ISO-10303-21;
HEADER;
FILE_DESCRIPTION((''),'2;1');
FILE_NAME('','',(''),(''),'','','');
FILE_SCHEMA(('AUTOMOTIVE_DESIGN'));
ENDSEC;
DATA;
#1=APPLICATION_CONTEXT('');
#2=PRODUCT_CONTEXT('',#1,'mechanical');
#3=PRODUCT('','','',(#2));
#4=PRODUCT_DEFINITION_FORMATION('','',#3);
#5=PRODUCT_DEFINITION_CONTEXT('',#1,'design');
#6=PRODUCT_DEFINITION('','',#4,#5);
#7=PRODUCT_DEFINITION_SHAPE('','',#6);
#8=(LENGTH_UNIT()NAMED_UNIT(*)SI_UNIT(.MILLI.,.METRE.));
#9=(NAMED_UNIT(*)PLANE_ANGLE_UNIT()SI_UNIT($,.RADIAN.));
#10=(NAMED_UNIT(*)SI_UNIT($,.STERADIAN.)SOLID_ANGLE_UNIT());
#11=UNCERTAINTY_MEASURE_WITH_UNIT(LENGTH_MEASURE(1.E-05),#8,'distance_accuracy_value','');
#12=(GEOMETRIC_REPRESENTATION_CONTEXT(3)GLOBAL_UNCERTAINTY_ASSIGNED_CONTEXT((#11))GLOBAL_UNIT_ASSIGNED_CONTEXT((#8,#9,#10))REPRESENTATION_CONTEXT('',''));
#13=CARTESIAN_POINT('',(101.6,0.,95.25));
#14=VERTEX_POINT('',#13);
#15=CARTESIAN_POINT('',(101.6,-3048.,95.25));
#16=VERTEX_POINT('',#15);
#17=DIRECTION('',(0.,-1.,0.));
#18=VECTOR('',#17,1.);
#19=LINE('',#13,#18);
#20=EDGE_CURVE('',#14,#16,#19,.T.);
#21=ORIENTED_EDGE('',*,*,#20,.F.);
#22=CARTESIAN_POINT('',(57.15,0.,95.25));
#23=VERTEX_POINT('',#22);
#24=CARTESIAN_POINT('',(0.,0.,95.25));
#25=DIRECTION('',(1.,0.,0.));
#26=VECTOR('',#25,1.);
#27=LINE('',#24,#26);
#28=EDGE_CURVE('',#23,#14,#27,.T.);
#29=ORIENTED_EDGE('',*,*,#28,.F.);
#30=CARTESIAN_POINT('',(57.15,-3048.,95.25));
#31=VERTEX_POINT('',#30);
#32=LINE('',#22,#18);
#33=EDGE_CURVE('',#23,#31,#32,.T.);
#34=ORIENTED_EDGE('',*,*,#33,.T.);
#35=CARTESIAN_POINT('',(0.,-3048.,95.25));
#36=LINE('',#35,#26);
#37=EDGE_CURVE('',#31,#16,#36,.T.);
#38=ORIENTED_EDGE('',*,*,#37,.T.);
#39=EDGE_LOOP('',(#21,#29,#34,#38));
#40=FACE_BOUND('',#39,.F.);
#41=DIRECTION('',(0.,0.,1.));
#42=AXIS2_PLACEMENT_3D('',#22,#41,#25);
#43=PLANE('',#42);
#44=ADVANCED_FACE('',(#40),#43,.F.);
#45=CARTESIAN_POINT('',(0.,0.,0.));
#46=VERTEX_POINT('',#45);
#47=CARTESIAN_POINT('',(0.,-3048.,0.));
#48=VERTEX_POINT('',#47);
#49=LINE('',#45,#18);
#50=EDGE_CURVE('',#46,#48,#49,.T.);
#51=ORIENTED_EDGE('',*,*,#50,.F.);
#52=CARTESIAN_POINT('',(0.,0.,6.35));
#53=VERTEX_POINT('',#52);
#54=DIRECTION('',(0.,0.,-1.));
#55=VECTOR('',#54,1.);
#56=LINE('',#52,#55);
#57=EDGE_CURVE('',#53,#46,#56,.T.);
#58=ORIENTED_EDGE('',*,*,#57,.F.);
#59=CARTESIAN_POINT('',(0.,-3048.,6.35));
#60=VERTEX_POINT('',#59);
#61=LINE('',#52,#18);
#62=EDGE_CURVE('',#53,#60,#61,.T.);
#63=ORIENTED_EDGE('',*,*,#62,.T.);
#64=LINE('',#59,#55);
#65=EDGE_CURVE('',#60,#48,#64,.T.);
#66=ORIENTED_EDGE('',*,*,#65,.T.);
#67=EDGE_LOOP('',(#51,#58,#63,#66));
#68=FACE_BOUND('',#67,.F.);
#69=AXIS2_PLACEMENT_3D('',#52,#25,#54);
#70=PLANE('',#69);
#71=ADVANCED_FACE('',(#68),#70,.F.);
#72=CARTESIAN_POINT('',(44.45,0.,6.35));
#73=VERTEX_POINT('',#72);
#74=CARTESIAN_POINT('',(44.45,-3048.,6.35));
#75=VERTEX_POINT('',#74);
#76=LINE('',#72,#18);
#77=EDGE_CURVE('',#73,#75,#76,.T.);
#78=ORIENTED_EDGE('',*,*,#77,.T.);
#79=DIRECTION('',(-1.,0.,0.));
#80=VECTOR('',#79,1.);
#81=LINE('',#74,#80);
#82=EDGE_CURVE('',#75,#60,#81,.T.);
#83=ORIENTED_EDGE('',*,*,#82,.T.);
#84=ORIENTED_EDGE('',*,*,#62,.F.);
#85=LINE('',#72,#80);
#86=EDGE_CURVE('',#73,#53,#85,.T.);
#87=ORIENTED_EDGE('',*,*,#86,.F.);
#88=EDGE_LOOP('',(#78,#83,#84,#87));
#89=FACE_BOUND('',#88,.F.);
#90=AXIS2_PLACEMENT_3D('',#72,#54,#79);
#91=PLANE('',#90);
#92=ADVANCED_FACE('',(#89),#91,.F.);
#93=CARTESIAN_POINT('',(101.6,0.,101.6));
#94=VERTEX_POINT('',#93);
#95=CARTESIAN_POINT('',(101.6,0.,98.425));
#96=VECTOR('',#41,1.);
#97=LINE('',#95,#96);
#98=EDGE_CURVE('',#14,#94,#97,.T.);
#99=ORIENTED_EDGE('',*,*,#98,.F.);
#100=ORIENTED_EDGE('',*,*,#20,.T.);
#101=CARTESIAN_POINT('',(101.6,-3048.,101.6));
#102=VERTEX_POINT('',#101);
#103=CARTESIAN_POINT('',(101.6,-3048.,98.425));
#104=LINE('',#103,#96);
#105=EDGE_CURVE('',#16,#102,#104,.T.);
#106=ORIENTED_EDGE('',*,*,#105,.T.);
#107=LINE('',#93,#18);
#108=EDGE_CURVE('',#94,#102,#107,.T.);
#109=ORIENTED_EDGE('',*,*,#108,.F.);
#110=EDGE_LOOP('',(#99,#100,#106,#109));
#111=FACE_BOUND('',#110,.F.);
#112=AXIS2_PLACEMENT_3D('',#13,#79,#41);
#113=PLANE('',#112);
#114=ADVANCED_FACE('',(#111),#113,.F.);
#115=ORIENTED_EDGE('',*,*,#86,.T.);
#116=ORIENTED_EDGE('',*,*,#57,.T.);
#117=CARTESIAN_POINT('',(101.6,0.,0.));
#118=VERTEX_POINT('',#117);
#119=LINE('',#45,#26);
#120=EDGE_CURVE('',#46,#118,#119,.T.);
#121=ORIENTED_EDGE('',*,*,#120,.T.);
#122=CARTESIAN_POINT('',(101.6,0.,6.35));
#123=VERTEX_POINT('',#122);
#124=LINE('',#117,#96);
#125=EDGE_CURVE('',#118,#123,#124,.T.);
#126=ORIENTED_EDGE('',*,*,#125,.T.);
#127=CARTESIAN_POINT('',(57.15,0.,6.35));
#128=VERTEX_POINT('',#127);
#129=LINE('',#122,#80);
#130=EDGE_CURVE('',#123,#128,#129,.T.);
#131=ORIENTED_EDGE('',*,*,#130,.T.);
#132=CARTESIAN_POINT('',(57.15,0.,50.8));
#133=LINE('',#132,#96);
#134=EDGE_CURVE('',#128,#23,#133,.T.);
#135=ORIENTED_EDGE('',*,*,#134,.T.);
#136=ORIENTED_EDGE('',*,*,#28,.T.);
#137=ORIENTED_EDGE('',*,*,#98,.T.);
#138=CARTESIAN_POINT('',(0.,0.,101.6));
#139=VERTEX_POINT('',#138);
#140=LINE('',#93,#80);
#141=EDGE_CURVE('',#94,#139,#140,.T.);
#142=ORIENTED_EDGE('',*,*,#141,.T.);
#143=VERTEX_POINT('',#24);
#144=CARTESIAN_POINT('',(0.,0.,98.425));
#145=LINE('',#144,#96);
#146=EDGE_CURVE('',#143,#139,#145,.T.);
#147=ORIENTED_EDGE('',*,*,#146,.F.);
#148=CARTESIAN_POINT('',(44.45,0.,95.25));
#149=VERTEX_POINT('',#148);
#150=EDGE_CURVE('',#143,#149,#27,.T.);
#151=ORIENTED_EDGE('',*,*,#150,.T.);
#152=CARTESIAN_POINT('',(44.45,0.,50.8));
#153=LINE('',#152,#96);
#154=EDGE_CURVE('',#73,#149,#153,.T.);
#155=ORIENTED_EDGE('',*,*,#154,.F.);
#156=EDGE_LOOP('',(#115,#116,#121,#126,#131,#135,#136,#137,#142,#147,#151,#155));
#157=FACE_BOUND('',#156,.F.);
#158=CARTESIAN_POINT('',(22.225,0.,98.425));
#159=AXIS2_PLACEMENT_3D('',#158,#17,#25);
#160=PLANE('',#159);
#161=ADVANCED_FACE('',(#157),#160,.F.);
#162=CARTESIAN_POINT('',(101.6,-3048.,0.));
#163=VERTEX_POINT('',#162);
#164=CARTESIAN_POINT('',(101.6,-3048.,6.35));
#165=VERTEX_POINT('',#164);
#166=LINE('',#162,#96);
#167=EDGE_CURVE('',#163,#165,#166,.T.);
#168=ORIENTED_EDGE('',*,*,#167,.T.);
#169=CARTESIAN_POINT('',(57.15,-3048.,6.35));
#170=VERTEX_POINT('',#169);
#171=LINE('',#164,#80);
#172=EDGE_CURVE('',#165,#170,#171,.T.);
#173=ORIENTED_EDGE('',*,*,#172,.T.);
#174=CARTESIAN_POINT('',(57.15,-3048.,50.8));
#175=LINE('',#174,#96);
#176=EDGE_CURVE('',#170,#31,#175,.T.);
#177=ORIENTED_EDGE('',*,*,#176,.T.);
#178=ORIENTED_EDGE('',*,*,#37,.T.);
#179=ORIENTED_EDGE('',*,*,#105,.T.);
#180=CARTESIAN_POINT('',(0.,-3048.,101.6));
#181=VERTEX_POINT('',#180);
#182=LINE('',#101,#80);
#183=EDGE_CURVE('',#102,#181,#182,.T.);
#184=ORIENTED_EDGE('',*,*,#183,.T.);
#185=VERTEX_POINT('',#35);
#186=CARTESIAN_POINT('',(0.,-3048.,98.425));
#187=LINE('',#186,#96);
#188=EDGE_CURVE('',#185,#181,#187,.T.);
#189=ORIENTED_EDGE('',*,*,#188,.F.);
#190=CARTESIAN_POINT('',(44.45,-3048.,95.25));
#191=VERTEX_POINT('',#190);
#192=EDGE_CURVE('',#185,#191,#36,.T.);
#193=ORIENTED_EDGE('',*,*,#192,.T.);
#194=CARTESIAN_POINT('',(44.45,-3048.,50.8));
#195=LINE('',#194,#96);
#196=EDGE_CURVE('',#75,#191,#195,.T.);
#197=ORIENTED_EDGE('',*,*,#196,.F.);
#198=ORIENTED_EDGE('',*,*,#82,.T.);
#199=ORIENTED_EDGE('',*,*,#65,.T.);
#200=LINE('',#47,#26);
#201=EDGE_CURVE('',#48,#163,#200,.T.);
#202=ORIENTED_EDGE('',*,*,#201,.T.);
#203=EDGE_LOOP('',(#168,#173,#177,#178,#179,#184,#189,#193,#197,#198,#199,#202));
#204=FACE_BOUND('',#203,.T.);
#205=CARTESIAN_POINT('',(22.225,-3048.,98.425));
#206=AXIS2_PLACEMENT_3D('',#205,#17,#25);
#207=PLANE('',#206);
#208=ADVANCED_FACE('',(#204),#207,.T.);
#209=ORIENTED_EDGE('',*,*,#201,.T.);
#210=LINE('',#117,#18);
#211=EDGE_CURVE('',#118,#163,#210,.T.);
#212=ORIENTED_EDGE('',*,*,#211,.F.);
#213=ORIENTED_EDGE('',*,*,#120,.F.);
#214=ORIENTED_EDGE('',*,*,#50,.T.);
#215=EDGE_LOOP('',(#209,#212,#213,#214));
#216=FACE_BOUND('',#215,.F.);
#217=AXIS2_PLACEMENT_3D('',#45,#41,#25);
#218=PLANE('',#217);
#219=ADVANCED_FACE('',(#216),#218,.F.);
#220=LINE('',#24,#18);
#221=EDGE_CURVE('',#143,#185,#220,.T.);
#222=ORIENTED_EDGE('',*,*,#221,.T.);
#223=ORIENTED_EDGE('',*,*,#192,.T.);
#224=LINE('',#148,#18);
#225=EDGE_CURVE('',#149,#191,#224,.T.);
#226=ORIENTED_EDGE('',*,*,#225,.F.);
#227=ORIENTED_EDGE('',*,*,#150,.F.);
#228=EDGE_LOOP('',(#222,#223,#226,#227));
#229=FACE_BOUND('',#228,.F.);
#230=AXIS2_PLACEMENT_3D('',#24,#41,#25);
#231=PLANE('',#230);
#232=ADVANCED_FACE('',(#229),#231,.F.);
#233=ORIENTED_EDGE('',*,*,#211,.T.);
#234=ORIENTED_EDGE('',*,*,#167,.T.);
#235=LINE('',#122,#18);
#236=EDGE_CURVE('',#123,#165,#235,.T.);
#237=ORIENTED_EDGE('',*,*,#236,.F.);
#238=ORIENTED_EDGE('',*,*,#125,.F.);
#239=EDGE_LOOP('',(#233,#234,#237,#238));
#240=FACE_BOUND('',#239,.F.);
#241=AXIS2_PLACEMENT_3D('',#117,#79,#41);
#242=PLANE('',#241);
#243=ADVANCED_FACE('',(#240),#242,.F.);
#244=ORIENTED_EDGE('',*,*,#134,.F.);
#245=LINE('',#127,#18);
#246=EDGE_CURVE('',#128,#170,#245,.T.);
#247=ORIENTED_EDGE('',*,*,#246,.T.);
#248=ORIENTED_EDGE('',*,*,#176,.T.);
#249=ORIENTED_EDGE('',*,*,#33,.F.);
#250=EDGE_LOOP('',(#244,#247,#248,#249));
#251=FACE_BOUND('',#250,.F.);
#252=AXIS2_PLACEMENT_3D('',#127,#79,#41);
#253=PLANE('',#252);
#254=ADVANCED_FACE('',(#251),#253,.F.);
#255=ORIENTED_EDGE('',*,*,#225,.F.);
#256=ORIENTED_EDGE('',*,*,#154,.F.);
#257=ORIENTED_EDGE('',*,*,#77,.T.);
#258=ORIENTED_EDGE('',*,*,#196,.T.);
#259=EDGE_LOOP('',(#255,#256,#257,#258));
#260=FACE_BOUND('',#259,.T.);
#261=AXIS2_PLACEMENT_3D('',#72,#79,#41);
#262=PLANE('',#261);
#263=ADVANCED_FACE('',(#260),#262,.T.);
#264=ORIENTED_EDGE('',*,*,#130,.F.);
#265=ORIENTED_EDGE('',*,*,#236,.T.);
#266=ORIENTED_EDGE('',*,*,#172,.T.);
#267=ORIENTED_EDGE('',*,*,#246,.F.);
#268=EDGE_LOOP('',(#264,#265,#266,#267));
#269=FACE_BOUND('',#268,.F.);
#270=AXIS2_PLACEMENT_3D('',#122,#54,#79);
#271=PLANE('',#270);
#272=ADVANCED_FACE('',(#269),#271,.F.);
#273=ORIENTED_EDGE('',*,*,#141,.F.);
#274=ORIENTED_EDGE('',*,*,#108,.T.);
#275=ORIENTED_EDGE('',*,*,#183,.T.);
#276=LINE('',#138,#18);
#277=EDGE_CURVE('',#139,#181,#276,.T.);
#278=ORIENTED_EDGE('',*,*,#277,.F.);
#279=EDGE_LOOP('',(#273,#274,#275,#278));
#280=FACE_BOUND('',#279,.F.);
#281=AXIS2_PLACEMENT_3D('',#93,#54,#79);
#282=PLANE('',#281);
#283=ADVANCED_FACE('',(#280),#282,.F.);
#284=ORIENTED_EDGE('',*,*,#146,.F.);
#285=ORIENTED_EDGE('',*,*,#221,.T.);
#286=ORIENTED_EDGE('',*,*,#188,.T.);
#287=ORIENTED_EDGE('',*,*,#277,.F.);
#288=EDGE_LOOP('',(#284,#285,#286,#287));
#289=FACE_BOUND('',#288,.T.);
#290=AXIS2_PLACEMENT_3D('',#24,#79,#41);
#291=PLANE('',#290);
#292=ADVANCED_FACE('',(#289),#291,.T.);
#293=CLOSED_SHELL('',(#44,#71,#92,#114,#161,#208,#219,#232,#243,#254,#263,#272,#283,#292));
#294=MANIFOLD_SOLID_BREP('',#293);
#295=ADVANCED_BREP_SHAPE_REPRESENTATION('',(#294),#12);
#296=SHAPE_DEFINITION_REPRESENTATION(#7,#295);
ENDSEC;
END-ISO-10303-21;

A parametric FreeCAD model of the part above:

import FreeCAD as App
import Part
import Sketcher
from FreeCAD import Vector
Q = App.Units.Quantity

doc = App.newDocument("Part")
body = doc.addObject("PartDesign::Body", "Body")

# Sketch on XZ plane
sketch1 = body.newObject("Sketcher::SketchObject", "Sketch")
sketch1.AttachmentSupport = (doc.getObject("XZ_Plane"), [""])
sketch1.MapMode = "FlatFace"
sketch1.addGeometry([
    Part.LineSegment(Vector(0, 102, 0), Vector(0, 95, 0)),  # 0
    Part.LineSegment(Vector(0, 95, 0), Vector(44, 95, 0)),  # 1
    Part.LineSegment(Vector(44, 95, 0), Vector(44, 6, 0)),  # 2
    Part.LineSegment(Vector(44, 6, 0), Vector(0, 6, 0)),  # 3
    Part.LineSegment(Vector(0, 6, 0), Vector(0, 0, 0)),  # 4
    Part.LineSegment(Vector(0, 0, 0), Vector(102, 0, 0)),  # 5
    Part.LineSegment(Vector(102, 0, 0), Vector(102, 6, 0)),  # 6
    Part.LineSegment(Vector(102, 6, 0), Vector(57, 6, 0)),  # 7
    Part.LineSegment(Vector(57, 6, 0), Vector(57, 95, 0)),  # 8
    Part.LineSegment(Vector(57, 95, 0), Vector(102, 95, 0)),  # 9
    Part.LineSegment(Vector(102, 95, 0), Vector(102, 102, 0)),  # 10
    Part.LineSegment(Vector(102, 102, 0), Vector(0, 102, 0)),  # 11
], False)
sketch1.addConstraint([
    Sketcher.Constraint("Coincident", 0, 2, 1, 1),
    Sketcher.Constraint("Coincident", 1, 2, 2, 1),
    Sketcher.Constraint("Coincident", 2, 2, 3, 1),
    Sketcher.Constraint("Coincident", 3, 2, 4, 1),
    Sketcher.Constraint("Coincident", 4, 2, 5, 1),
    Sketcher.Constraint("Coincident", 5, 2, 6, 1),
    Sketcher.Constraint("Coincident", 6, 2, 7, 1),
    Sketcher.Constraint("Coincident", 7, 2, 8, 1),
    Sketcher.Constraint("Coincident", 8, 2, 9, 1),
    Sketcher.Constraint("Coincident", 9, 2, 10, 1),
    Sketcher.Constraint("Coincident", 10, 2, 11, 1),
    Sketcher.Constraint("Coincident", 11, 2, 0, 1),
    Sketcher.Constraint("Vertical", 0),
    Sketcher.Constraint("Horizontal", 1),
    Sketcher.Constraint("Vertical", 2),
    Sketcher.Constraint("Horizontal", 3),
    Sketcher.Constraint("Vertical", 4),
    Sketcher.Constraint("Horizontal", 5),
    Sketcher.Constraint("Vertical", 6),
    Sketcher.Constraint("Horizontal", 7),
    Sketcher.Constraint("Vertical", 8),
    Sketcher.Constraint("Horizontal", 9),
    Sketcher.Constraint("Vertical", 10),
    Sketcher.Constraint("Horizontal", 11),
    Sketcher.Constraint("Coincident", 4, 2, -1, 1),
    Sketcher.Constraint("PointOnObject", 0, 2, -2),
    Sketcher.Constraint("Horizontal", 3, 2, 6, 2),
    Sketcher.Constraint("Horizontal", 1, 2, 8, 2),
    Sketcher.Constraint("Vertical", 6, 2, 9, 2),
    Sketcher.Constraint("Equal", 3, 7),
    Sketcher.Constraint("Equal", 0, 4),
    Sketcher.Constraint("DistanceX", 5, 1, 5, 2, Q("4 in")),
    Sketcher.Constraint("DistanceY", 2, 2, 2, 1, Q("3.5 in")),
    Sketcher.Constraint("DistanceY", -1, 1, 10, 2, Q("4 in")),
    Sketcher.Constraint("DistanceX", 1, 1, 1, 2, Q("1.75 in")),
])
pad1 = body.newObject("PartDesign::Pad", "Pad")
pad1.Profile = sketch1
pad1.Length = Q("120 in")

doc.recompute()
